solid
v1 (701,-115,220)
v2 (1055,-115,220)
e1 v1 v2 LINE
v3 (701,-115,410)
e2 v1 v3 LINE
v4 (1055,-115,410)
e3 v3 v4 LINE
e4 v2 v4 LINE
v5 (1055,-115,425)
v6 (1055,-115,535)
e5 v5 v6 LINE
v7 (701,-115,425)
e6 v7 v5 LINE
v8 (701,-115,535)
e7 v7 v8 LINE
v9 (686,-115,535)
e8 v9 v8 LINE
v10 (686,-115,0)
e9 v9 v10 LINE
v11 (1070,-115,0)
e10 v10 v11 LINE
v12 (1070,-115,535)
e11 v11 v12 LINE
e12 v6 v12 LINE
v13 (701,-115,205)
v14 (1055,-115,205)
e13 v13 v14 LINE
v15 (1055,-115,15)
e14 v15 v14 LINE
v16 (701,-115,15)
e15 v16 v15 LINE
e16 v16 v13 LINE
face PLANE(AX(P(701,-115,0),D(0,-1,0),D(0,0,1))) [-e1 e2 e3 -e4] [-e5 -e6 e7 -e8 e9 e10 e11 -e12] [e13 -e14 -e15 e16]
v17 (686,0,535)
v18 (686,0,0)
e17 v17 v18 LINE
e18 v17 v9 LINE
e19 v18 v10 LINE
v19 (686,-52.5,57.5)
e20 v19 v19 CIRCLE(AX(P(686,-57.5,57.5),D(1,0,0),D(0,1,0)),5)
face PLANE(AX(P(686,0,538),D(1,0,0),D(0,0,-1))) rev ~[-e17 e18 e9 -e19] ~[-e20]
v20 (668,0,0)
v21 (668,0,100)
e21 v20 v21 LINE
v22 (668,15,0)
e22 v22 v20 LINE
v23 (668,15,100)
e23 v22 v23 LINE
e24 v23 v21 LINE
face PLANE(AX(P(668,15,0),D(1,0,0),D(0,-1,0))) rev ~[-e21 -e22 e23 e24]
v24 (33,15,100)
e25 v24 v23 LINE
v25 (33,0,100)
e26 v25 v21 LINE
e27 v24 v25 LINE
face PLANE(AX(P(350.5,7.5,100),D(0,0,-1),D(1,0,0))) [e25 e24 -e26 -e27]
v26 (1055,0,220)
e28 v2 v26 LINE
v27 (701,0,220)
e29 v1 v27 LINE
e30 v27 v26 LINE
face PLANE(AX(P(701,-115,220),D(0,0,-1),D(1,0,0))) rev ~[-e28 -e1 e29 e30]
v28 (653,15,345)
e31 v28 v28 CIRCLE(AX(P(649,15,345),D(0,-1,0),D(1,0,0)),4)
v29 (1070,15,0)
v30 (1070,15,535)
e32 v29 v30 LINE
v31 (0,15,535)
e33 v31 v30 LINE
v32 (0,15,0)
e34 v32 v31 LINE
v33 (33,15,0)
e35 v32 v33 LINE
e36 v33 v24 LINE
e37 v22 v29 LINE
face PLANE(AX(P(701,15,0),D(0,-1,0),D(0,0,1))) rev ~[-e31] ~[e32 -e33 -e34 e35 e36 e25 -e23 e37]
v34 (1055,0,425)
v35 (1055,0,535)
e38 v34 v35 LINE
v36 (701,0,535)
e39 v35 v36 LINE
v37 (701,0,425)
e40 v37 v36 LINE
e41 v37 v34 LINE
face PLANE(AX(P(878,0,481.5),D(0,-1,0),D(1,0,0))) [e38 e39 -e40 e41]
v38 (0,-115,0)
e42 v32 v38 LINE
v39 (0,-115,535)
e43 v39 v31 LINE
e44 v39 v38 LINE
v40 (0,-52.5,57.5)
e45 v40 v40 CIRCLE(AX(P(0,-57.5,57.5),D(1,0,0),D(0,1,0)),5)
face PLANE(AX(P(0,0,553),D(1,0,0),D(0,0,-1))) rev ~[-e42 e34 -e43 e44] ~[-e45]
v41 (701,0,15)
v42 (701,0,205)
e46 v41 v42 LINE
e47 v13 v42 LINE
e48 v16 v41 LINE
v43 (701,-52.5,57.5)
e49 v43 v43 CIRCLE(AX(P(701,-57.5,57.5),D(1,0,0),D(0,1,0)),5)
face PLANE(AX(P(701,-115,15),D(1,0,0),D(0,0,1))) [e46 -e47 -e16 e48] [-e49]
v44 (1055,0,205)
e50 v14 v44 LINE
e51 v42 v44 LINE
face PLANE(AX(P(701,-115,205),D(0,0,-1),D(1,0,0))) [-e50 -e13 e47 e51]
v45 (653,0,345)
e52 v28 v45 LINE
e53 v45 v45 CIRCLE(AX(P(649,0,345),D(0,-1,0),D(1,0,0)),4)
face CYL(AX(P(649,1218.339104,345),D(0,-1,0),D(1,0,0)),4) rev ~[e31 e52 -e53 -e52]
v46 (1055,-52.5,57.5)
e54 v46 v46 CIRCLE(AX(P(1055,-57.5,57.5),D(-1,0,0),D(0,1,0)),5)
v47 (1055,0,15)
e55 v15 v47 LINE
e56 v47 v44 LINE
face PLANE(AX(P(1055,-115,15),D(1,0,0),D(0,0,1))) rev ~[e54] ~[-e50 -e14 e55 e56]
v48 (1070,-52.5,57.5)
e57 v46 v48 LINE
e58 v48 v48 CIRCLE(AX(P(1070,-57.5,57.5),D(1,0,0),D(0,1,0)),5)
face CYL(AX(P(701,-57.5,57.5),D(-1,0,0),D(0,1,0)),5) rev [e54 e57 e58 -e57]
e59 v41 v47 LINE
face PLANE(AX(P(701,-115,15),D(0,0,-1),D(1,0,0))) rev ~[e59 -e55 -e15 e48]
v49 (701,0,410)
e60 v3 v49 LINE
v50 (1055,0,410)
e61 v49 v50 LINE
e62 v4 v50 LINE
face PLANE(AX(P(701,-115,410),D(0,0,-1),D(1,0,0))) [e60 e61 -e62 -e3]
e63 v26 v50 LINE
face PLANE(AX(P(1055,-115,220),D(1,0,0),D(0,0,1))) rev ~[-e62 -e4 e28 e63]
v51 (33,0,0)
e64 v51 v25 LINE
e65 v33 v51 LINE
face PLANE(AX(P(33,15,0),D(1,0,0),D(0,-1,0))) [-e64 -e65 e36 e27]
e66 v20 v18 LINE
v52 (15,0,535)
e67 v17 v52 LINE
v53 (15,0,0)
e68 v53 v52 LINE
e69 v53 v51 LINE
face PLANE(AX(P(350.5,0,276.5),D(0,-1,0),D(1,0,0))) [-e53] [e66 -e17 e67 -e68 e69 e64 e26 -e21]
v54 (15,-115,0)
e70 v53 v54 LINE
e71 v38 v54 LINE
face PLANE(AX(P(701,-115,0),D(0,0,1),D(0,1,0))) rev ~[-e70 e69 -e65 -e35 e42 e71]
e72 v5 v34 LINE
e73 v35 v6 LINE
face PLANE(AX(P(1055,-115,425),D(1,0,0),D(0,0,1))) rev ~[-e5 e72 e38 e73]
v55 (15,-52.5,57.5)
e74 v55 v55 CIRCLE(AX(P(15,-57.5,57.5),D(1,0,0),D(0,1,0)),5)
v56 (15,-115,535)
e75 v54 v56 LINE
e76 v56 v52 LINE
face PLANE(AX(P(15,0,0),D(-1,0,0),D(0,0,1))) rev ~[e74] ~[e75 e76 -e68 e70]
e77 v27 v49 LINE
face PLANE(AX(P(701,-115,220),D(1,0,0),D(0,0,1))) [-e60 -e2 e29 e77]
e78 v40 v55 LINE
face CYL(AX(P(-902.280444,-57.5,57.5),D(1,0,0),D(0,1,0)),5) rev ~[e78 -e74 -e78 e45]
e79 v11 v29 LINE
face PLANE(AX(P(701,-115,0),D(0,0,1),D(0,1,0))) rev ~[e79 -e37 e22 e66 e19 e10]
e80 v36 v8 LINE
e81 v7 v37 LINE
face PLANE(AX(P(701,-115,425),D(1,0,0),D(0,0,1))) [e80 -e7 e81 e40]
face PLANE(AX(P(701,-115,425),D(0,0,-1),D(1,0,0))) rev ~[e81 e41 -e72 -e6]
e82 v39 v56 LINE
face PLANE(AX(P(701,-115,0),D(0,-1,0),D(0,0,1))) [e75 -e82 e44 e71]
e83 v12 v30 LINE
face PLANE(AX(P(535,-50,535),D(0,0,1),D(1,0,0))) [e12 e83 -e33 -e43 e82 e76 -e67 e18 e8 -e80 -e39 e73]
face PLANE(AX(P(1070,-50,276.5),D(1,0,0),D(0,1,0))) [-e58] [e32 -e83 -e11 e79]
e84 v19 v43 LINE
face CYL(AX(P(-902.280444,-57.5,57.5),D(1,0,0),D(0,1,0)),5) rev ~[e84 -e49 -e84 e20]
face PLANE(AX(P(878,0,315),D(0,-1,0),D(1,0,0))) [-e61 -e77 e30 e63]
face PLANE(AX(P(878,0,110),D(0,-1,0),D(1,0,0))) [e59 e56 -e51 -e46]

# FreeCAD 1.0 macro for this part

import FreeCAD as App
import Part
import Sketcher


def add_polygon(sketch, points):
    """Adds a closed chain of lines whose ends are joined by coincident constraints."""
    first, n = sketch.GeometryCount, len(points)
    for a, b in zip(points, points[1:] + points[:1]):
        sketch.addGeometry(Part.LineSegment(App.Vector(*a, 0), App.Vector(*b, 0)), False)
    for i in range(n):
        sketch.addConstraint(Sketcher.Constraint("Coincident", first + i, 2, first + (i + 1) % n, 1))

doc = App.newDocument("Part")
body = doc.addObject("PartDesign::Body", "Body")

# Sketch on XZ plane
sketch1 = body.newObject("Sketcher::SketchObject", "Sketch")
sketch1.AttachmentSupport = (doc.getObject("XZ_Plane"), [""])
sketch1.MapMode = "FlatFace"
add_polygon(sketch1, [(0, 553), (0, 0), (701, 0), (701, 553)])  # lines 0-3
sketch1.addConstraint(Sketcher.Constraint("Vertical", 0))
sketch1.addConstraint(Sketcher.Constraint("Horizontal", 1))
sketch1.addConstraint(Sketcher.Constraint("Vertical", 2))
sketch1.addConstraint(Sketcher.Constraint("Horizontal", 3))
sketch1.addConstraint(Sketcher.Constraint("Coincident", 0, 2, -1, 1))
sketch1.addConstraint(Sketcher.Constraint("DistanceX", 1, 1, 1, 2, 701.0))
sketch1.addConstraint(Sketcher.Constraint("DistanceY", 0, 2, 0, 1, 553.0))
pad1 = body.newObject("PartDesign::Pad", "Pad")
pad1.Profile = sketch1
pad1.Length = 15
pad1.Reversed = True

# Sketch on XZ plane
sketch2 = body.newObject("Sketcher::SketchObject", "Sketch001")
sketch2.AttachmentSupport = (doc.getObject("XZ_Plane"), [""])
sketch2.MapMode = "FlatFace"
add_polygon(sketch2, [(0, 553), (0, 0), (15, 0), (15, 538), (686, 538), (686, 0), (701, 0), (701, 553)])  # lines 0-7
sketch2.addConstraint(Sketcher.Constraint("Vertical", 0))
sketch2.addConstraint(Sketcher.Constraint("Horizontal", 1))
sketch2.addConstraint(Sketcher.Constraint("Vertical", 2))
sketch2.addConstraint(Sketcher.Constraint("Horizontal", 3))
sketch2.addConstraint(Sketcher.Constraint("Vertical", 4))
sketch2.addConstraint(Sketcher.Constraint("Horizontal", 5))
sketch2.addConstraint(Sketcher.Constraint("Vertical", 6))
sketch2.addConstraint(Sketcher.Constraint("Horizontal", 7))
sketch2.addConstraint(Sketcher.Constraint("Coincident", 0, 2, -1, 1))
sketch2.addConstraint(Sketcher.Constraint("PointOnObject", 4, 2, -1))
sketch2.addConstraint(Sketcher.Constraint("Equal", 1, 5))
sketch2.addConstraint(Sketcher.Constraint("DistanceX", 1, 1, 1, 2, 15.0))
sketch2.addConstraint(Sketcher.Constraint("DistanceX", 3, 1, 3, 2, 671.0))
sketch2.addConstraint(Sketcher.Constraint("DistanceY", 0, 2, 0, 1, 553.0))
sketch2.addConstraint(Sketcher.Constraint("DistanceY", 2, 1, 2, 2, 538.0))
pad2 = body.newObject("PartDesign::Pad", "Pad001")
pad2.Profile = sketch2
pad2.Length = 115

# Sketch on YZ plane
sketch3 = body.newObject("Sketcher::SketchObject", "Sketch002")
sketch3.AttachmentSupport = (doc.getObject("YZ_Plane"), [""])
sketch3.MapMode = "FlatFace"
sketch3.addGeometry(Part.Circle(App.Vector(-58, 58, 0), App.Vector(0, 0, 1), 5), False)
sketch3.addConstraint(Sketcher.Constraint("Diameter", 0, 10.0))
sketch3.addConstraint(Sketcher.Constraint("DistanceX", 0, 3, -1, 1, 57.5))
sketch3.addConstraint(Sketcher.Constraint("DistanceY", -1, 1, 0, 3, 57.5))
doc.recompute()
hole = body.newObject("PartDesign::Hole", "Hole")
hole.Profile = sketch3
hole.ThreadType = "None"
hole.Diameter = 10
hole.DepthType = "ThroughAll"
hole.Reversed = True

# Sketch on YZ plane
sketch4 = body.newObject("Sketcher::SketchObject", "Sketch003")
sketch4.AttachmentSupport = (doc.getObject("YZ_Plane"), [""])
sketch4.MapMode = "FlatFace"
sketch4.AttachmentOffset = App.Placement(App.Vector(0, 0, 701), App.Rotation())
add_polygon(sketch4, [(-115, 553), (-115, 0), (15, 0), (15, 553)])  # lines 0-3
sketch4.addGeometry(Part.Circle(App.Vector(-58, 58, 0), App.Vector(0, 0, 1), 5), False)  # 4
sketch4.addConstraint(Sketcher.Constraint("Vertical", 0))
sketch4.addConstraint(Sketcher.Constraint("Horizontal", 1))
sketch4.addConstraint(Sketcher.Constraint("Vertical", 2))
sketch4.addConstraint(Sketcher.Constraint("Horizontal", 3))
sketch4.addConstraint(Sketcher.Constraint("PointOnObject", 0, 2, -1))
sketch4.addConstraint(Sketcher.Constraint("Diameter", 4, 10.0))
sketch4.addConstraint(Sketcher.Constraint("DistanceX", 1, 1, 1, 2, 130.0))
sketch4.addConstraint(Sketcher.Constraint("DistanceY", 0, 2, 0, 1, 553.0))
sketch4.addConstraint(Sketcher.Constraint("DistanceX", 0, 2, -1, 1, 115.0))
sketch4.addConstraint(Sketcher.Constraint("DistanceX", 4, 3, -1, 1, 57.5))
sketch4.addConstraint(Sketcher.Constraint("DistanceY", -1, 1, 4, 3, 57.5))
pad3 = body.newObject("PartDesign::Pad", "Pad002")
pad3.Profile = sketch4
pad3.Length = 369

# Sketch on XZ plane
sketch5 = body.newObject("Sketcher::SketchObject", "Sketch004")
sketch5.AttachmentSupport = (doc.getObject("XZ_Plane"), [""])
sketch5.MapMode = "FlatFace"
sketch5.AttachmentOffset = App.Placement(App.Vector(0, 0, 115), App.Rotation())
add_polygon(sketch5, [(701, 538), (701, 425), (1055, 425), (1055, 538)])  # lines 0-3
add_polygon(sketch5, [(701, 410), (701, 220), (1055, 220), (1055, 410)])  # lines 4-7
add_polygon(sketch5, [(701, 205), (701, 15), (1055, 15), (1055, 205)])  # lines 8-11
sketch5.addConstraint(Sketcher.Constraint("Vertical", 0))
sketch5.addConstraint(Sketcher.Constraint("Horizontal", 1))
sketch5.addConstraint(Sketcher.Constraint("Vertical", 2))
sketch5.addConstraint(Sketcher.Constraint("Horizontal", 3))
sketch5.addConstraint(Sketcher.Constraint("Vertical", 4))
sketch5.addConstraint(Sketcher.Constraint("Horizontal", 5))
sketch5.addConstraint(Sketcher.Constraint("Vertical", 6))
sketch5.addConstraint(Sketcher.Constraint("Horizontal", 7))
sketch5.addConstraint(Sketcher.Constraint("Vertical", 8))
sketch5.addConstraint(Sketcher.Constraint("Horizontal", 9))
sketch5.addConstraint(Sketcher.Constraint("Vertical", 10))
sketch5.addConstraint(Sketcher.Constraint("Horizontal", 11))
sketch5.addConstraint(Sketcher.Constraint("Vertical", 3, 2, 4, 2))
sketch5.addConstraint(Sketcher.Constraint("Vertical", 2, 2, 5, 2))
sketch5.addConstraint(Sketcher.Constraint("Vertical", 7, 2, 8, 2))
sketch5.addConstraint(Sketcher.Constraint("Vertical", 6, 2, 9, 2))
sketch5.addConstraint(Sketcher.Constraint("Equal", 6, 8))
sketch5.addConstraint(Sketcher.Constraint("DistanceX", 1, 1, 1, 2, 354.0))
sketch5.addConstraint(Sketcher.Constraint("DistanceY", 0, 2, 0, 1, 113.0))
sketch5.addConstraint(Sketcher.Constraint("DistanceY", 4, 2, 4, 1, 190.0))
sketch5.addConstraint(Sketcher.Constraint("DistanceX", -1, 1, 0, 2, 701.0))
sketch5.addConstraint(Sketcher.Constraint("DistanceY", -1, 1, 0, 2, 425.0))
sketch5.addConstraint(Sketcher.Constraint("DistanceY", -1, 1, 4, 2, 220.0))
sketch5.addConstraint(Sketcher.Constraint("DistanceY", -1, 1, 8, 2, 15.0))
pocket1 = body.newObject("PartDesign::Pocket", "Pocket")
pocket1.Profile = sketch5
pocket1.Length = 115

# Sketch on XY plane
sketch6 = body.newObject("Sketcher::SketchObject", "Sketch005")
sketch6.AttachmentSupport = (doc.getObject("XY_Plane"), [""])
sketch6.MapMode = "FlatFace"
sketch6.AttachmentOffset = App.Placement(App.Vector(0, 0, 553), App.Rotation())
add_polygon(sketch6, [(0, 15), (0, -115), (1070, -115), (1070, 15)])  # lines 0-3
sketch6.addConstraint(Sketcher.Constraint("Vertical", 0))
sketch6.addConstraint(Sketcher.Constraint("Horizontal", 1))
sketch6.addConstraint(Sketcher.Constraint("Vertical", 2))
sketch6.addConstraint(Sketcher.Constraint("Horizontal", 3))
sketch6.addConstraint(Sketcher.Constraint("PointOnObject", 0, 2, -2))
sketch6.addConstraint(Sketcher.Constraint("DistanceX", 1, 1, 1, 2, 1070.0))
sketch6.addConstraint(Sketcher.Constraint("DistanceY", 0, 2, 0, 1, 130.0))
sketch6.addConstraint(Sketcher.Constraint("DistanceY", 0, 2, -1, 1, 115.0))
pocket2 = body.newObject("PartDesign::Pocket", "Pocket001")
pocket2.Profile = sketch6
pocket2.Length = 18

# Sketch on XY plane
sketch7 = body.newObject("Sketcher::SketchObject", "Sketch006")
sketch7.AttachmentSupport = (doc.getObject("XY_Plane"), [""])
sketch7.MapMode = "FlatFace"
add_polygon(sketch7, [(33, 0), (33, 15), (668, 15), (668, 0)])  # lines 0-3
sketch7.addConstraint(Sketcher.Constraint("Vertical", 0))
sketch7.addConstraint(Sketcher.Constraint("Horizontal", 1))
sketch7.addConstraint(Sketcher.Constraint("Vertical", 2))
sketch7.addConstraint(Sketcher.Constraint("Horizontal", 3))
sketch7.addConstraint(Sketcher.Constraint("PointOnObject", 2, 2, -1))
sketch7.addConstraint(Sketcher.Constraint("DistanceX", 1, 1, 1, 2, 635.0))
sketch7.addConstraint(Sketcher.Constraint("DistanceY", 0, 1, 0, 2, 15.0))
sketch7.addConstraint(Sketcher.Constraint("DistanceX", -1, 1, 0, 2, 33.0))
pocket3 = body.newObject("PartDesign::Pocket", "Pocket002")
pocket3.Profile = sketch7
pocket3.Length = 100
pocket3.Reversed = True

# Sketch on XZ plane
sketch8 = body.newObject("Sketcher::SketchObject", "Sketch007")
sketch8.AttachmentSupport = (doc.getObject("XZ_Plane"), [""])
sketch8.MapMode = "FlatFace"
sketch8.AttachmentOffset = App.Placement(App.Vector(0, 0, -15), App.Rotation())
sketch8.addGeometry(Part.Circle(App.Vector(649, 345, 0), App.Vector(0, 0, 1), 4), False)
sketch8.addConstraint(Sketcher.Constraint("Diameter", 0, 8.0))
sketch8.addConstraint(Sketcher.Constraint("DistanceX", -1, 1, 0, 3, 649.0))
sketch8.addConstraint(Sketcher.Constraint("DistanceY", -1, 1, 0, 3, 345.0))
doc.recompute()
hole2 = body.newObject("PartDesign::Hole", "Hole001")
hole2.Profile = sketch8
hole2.ThreadType = "None"
hole2.Diameter = 8
hole2.DepthType = "ThroughAll"
hole2.Reversed = True

doc.recompute()
